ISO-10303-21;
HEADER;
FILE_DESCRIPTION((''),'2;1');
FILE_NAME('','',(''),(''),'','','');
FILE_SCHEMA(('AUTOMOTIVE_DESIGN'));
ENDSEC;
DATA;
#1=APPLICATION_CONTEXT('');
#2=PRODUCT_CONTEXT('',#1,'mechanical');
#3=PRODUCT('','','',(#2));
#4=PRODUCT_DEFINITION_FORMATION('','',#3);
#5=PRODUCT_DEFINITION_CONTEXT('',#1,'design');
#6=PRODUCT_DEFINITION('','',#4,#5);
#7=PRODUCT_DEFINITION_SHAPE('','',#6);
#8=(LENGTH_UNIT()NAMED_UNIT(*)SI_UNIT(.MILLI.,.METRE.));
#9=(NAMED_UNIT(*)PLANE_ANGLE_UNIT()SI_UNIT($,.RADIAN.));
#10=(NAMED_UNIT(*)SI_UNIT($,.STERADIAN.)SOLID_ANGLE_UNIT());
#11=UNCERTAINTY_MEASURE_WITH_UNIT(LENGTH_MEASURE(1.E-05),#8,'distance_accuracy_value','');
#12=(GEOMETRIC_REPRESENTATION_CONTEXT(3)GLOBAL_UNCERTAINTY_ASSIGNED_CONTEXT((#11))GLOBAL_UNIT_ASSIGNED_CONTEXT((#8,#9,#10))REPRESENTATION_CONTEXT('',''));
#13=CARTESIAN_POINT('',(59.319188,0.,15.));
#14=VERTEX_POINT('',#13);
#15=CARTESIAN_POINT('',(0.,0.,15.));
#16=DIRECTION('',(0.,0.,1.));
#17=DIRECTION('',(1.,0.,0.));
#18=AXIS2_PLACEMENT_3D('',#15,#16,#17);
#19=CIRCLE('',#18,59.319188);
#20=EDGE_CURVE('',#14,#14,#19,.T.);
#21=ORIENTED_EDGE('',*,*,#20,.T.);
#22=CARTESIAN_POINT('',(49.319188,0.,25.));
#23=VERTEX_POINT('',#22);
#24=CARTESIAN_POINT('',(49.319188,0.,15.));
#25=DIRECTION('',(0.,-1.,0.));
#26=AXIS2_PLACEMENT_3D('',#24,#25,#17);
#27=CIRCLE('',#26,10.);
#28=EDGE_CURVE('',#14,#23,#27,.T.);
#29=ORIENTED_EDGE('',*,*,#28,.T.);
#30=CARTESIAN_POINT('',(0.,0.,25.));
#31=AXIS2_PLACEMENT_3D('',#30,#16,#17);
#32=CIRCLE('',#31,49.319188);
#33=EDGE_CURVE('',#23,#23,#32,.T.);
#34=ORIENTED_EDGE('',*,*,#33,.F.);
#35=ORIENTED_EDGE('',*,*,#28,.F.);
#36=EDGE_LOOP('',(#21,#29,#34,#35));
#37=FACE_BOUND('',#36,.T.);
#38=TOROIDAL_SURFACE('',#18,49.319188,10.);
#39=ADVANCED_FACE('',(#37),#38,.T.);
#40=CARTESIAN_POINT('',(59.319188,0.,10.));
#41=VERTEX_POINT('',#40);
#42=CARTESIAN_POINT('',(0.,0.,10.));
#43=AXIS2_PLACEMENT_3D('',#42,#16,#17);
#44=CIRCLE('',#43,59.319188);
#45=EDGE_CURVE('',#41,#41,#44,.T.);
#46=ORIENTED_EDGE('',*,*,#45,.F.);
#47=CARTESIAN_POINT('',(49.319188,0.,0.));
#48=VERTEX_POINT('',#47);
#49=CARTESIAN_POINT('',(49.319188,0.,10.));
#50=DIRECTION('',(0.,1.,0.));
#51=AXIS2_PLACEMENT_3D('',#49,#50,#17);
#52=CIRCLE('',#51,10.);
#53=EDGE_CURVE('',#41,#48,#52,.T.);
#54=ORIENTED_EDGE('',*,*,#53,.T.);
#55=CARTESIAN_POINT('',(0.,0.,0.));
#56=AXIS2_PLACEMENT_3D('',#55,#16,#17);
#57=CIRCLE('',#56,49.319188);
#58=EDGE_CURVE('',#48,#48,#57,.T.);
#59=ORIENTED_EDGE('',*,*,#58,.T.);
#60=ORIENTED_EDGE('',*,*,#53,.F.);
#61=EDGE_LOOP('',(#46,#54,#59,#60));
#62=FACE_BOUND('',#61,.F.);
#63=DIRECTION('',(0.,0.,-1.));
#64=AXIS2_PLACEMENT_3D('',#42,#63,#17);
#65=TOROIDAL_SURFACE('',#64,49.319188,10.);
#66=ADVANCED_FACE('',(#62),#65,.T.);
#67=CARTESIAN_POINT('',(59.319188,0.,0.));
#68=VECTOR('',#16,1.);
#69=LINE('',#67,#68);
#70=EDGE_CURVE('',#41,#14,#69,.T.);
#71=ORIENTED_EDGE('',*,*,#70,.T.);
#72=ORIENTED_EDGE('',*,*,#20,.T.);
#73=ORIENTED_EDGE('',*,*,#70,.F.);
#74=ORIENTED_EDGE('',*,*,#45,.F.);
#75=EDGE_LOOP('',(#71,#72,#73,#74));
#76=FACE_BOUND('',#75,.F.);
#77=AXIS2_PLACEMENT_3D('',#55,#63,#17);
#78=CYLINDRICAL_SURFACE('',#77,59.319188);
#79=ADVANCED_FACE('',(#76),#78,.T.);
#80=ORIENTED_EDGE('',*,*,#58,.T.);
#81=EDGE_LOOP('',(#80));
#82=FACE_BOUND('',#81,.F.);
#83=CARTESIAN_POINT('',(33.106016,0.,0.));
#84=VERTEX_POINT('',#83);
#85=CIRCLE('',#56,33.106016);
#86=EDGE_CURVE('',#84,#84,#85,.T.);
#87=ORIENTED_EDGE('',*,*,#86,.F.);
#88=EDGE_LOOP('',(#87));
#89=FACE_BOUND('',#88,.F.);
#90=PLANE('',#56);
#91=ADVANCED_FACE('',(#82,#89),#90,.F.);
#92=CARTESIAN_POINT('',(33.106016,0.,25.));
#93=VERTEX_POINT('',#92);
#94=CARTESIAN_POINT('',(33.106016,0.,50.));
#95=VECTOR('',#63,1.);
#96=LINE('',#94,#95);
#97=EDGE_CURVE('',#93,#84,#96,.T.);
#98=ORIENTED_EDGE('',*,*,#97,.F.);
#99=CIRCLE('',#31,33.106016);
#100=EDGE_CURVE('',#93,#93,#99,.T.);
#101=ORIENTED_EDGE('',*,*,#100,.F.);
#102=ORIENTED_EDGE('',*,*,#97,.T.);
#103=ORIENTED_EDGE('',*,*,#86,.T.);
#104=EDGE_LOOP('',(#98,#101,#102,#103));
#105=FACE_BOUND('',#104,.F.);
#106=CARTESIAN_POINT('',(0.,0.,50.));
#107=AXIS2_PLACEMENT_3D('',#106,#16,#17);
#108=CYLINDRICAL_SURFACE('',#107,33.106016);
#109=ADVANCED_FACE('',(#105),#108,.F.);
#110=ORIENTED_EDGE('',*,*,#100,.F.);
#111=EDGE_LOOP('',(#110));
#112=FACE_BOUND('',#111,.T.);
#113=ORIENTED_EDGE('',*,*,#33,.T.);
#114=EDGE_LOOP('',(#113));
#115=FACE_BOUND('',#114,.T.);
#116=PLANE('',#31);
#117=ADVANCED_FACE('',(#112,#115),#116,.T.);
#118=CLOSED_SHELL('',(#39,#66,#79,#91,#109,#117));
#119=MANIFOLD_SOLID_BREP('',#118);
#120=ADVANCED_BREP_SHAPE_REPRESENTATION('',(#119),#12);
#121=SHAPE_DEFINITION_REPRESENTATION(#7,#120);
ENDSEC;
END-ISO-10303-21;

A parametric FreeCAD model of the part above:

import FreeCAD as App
import Part
import Sketcher

V = App.Vector
Q = App.Units.Quantity


def edges_at(feature, points):
    """Names of the edges that pass closest to the given points."""
    edges = feature.Shape.Edges
    near = lambda p: min(range(len(edges)), key=lambda i: edges[i].distToShape(Part.Vertex(*p))[0])
    return sorted({f"Edge{near(p) + 1}" for p in points})

doc = App.newDocument("Part")
body = doc.addObject("PartDesign::Body", "Body")

sketch1 = doc.addObject("Sketcher::SketchObject", "Sketch")
body.addObject(sketch1)
sketch1.AttachmentSupport = (doc.XY_Plane, [""])
sketch1.MapMode = "FlatFace"
sketch1.addGeometry(Part.Circle(V(0, 0, 0), V(0, 0, 1), 59), False)
sketch1.addConstraint([
    Sketcher.Constraint("Coincident", 0, 3, -1, 1),
    Sketcher.Constraint("Diameter", 0, Q("118.638376 mm")),
])
pad1 = doc.addObject("PartDesign::Pad", "Pad")
body.addObject(pad1)
pad1.Profile = sketch1
pad1.Length = 25

sketch2 = doc.addObject("Sketcher::SketchObject", "Sketch001")
body.addObject(sketch2)
sketch2.AttachmentSupport = (doc.XY_Plane, [""])
sketch2.MapMode = "FlatFace"
sketch2.AttachmentOffset = App.Placement(V(0, 0, 50), App.Rotation())
sketch2.addGeometry(Part.Circle(V(0, 0, 0), V(0, 0, 1), 33), False)
sketch2.addConstraint([
    Sketcher.Constraint("Coincident", 0, 3, -1, 1),
    Sketcher.Constraint("Diameter", 0, Q("66.212032 mm")),
])
pocket1 = doc.addObject("PartDesign::Pocket", "Pocket")
body.addObject(pocket1)
pocket1.Profile = sketch2
pocket1.Length = 116.983913
doc.recompute()

fillet = doc.addObject("PartDesign::Fillet", "Fillet")
body.addObject(fillet)
fillet.Base = (pocket1, edges_at(pocket1, [(-59.319, 0, 0), (-59.319, 0, 25)]))
fillet.Radius = 10

doc.recompute()
